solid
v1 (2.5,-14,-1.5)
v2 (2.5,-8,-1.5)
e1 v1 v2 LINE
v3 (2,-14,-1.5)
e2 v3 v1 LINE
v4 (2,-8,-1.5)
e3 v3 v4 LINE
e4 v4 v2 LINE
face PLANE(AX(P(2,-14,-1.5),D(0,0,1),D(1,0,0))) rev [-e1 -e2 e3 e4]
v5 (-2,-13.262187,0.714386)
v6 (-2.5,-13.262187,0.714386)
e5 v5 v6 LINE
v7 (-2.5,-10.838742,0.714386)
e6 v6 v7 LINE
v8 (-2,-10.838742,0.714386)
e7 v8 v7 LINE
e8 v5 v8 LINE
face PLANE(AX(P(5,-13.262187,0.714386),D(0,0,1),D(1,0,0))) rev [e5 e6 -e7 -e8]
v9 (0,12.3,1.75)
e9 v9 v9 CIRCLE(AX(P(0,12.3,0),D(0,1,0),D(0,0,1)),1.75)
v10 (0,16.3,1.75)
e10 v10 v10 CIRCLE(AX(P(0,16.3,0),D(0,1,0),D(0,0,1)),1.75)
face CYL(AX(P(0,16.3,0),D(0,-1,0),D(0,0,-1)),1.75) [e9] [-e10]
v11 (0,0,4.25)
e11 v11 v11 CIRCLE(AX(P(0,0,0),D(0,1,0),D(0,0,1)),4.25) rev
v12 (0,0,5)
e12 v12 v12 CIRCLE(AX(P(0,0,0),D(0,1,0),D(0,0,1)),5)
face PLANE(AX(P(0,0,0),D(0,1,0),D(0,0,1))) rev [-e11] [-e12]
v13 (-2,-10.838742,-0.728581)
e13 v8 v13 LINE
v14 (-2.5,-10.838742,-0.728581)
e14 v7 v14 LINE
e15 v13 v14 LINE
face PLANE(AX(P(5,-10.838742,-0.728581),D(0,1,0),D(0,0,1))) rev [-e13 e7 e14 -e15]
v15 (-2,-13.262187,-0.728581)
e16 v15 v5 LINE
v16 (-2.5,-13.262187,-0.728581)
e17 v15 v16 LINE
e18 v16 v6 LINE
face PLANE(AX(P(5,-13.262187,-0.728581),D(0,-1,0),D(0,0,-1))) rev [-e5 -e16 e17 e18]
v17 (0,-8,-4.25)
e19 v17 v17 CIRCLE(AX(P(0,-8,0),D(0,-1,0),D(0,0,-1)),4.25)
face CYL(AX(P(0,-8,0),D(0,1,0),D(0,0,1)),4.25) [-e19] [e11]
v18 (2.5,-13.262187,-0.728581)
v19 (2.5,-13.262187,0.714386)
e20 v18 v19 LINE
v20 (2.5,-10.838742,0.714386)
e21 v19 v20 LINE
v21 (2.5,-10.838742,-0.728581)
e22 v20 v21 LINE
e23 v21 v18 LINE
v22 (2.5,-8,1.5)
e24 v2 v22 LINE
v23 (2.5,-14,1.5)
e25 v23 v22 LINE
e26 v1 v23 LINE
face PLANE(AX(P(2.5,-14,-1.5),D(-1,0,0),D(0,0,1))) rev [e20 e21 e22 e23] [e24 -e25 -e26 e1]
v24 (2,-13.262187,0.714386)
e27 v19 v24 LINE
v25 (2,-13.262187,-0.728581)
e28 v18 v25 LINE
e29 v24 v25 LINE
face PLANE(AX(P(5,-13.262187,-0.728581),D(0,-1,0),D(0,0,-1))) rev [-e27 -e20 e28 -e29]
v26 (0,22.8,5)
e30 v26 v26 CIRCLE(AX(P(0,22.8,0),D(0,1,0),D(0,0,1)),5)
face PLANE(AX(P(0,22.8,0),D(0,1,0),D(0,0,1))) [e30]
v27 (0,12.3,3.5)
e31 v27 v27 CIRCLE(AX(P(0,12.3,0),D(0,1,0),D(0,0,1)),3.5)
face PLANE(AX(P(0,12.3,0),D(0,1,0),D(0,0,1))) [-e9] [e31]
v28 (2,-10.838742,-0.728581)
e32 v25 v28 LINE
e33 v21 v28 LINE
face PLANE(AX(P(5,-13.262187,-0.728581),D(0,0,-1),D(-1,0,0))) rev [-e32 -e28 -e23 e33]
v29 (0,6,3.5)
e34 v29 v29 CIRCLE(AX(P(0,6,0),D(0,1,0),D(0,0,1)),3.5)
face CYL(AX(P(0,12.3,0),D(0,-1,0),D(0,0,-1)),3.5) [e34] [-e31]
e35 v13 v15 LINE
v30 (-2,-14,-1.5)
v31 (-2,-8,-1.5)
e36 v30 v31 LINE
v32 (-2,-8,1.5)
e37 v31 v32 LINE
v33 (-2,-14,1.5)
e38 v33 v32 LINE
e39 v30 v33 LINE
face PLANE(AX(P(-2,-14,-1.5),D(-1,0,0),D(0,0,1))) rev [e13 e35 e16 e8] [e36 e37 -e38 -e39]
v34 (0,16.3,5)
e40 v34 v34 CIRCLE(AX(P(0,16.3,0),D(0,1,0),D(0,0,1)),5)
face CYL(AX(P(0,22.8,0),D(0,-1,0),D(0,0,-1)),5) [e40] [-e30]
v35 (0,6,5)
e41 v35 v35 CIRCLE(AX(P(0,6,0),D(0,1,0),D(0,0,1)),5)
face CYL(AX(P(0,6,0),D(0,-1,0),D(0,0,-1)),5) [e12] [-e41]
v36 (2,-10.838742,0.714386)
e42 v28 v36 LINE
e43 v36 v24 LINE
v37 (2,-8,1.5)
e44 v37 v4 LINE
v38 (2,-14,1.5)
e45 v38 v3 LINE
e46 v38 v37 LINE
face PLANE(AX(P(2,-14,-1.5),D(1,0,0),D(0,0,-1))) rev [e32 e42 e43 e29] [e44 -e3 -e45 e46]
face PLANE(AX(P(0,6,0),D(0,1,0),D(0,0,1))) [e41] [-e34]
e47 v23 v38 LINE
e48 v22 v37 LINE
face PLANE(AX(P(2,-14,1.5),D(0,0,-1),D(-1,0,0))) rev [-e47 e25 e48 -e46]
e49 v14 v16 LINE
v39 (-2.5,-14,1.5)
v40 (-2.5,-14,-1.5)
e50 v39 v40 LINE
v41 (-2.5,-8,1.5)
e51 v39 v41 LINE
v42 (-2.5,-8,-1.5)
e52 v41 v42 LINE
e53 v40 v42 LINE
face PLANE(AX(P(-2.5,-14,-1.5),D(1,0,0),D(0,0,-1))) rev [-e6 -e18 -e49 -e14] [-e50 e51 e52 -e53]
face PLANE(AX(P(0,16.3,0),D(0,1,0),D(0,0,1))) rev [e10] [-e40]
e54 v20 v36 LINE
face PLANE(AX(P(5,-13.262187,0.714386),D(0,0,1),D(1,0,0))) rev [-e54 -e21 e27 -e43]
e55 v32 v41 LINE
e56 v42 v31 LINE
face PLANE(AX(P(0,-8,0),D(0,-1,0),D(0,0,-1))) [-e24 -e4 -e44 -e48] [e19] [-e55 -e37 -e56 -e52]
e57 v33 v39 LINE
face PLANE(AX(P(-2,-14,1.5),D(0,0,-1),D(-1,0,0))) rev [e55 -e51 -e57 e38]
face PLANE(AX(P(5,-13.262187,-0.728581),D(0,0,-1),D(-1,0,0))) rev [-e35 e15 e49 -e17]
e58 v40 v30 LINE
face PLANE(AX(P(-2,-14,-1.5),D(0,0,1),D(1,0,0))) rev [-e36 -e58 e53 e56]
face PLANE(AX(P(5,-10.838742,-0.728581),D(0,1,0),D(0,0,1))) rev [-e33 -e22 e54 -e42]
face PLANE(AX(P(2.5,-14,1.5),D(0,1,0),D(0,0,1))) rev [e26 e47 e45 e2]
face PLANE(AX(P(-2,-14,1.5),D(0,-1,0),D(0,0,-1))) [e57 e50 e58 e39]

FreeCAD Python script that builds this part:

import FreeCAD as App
import Part
import Sketcher
from FreeCAD import Vector
Q = App.Units.Quantity

doc = App.newDocument("Part")
params = doc.addObject("Spreadsheet::Sheet", "Params")
for row, (alias, value) in enumerate([
    ("sketch1_diameter", "10 mm"),
    ("pad1_length", "6 mm"),
    ("sketch2_diameter", "8.5 mm"),
    ("pad2_length", "8 mm"),
    ("sketch3_height", "3 mm"),
    ("sketch3_width", "0.5 mm"),
    ("pad3_length", "6 mm"),
    ("sketch5_diameter", "7 mm"),
    ("pad4_length", "6.3 mm"),
    ("sketch6_diameter", "3.5 mm"),
    ("pad5_length", "4 mm"),
    ("sketch7_diameter", "10 mm"),
    ("pad6_length", "6.5 mm"),
], start=1):
    params.set(f"A{row}", alias)
    params.set(f"B{row}", "=" + value)
    params.setAlias(f"B{row}", alias)

body = doc.addObject("PartDesign::Body", "Body")

# Sketch on XZ plane
sketch1 = doc.addObject("Sketcher::SketchObject", "Sketch")
body.addObject(sketch1)
sketch1.AttachmentSupport = (doc.XZ_Plane, [""])
sketch1.MapMode = "FlatFace"
sketch1.addGeometry(Part.Circle(Vector(0, 0, 0), Vector(0, 0, 1), 5), False)
sketch1.addConstraint([
    Sketcher.Constraint("Coincident", 0, 3, -1, 1),
    Sketcher.Constraint("Diameter", 0, Q("10 mm")),
])
sketch1.setExpression("Constraints[1]", "Params.sketch1_diameter")
pad1 = doc.addObject("PartDesign::Pad", "Pad")
body.addObject(pad1)
pad1.Profile = sketch1
pad1.setExpression("Length", "Params.pad1_length")
pad1.Reversed = True

# Sketch on XZ plane
sketch2 = doc.addObject("Sketcher::SketchObject", "Sketch001")
body.addObject(sketch2)
sketch2.AttachmentSupport = (doc.XZ_Plane, [""])
sketch2.MapMode = "FlatFace"
sketch2.addGeometry(Part.Circle(Vector(0, 0, 0), Vector(0, 0, 1), 4.25), False)
sketch2.addConstraint([
    Sketcher.Constraint("Coincident", 0, 3, -1, 1),
    Sketcher.Constraint("Diameter", 0, Q("8.5 mm")),
])
sketch2.setExpression("Constraints[1]", "Params.sketch2_diameter")
pad2 = doc.addObject("PartDesign::Pad", "Pad001")
body.addObject(pad2)
pad2.Profile = sketch2
pad2.setExpression("Length", "Params.pad2_length")

# Sketch on XZ plane
sketch3 = doc.addObject("Sketcher::SketchObject", "Sketch002")
body.addObject(sketch3)
sketch3.AttachmentSupport = (doc.XZ_Plane, [""])
sketch3.MapMode = "FlatFace"
sketch3.AttachmentOffset = App.Placement(Vector(0, 0, 8), App.Rotation())
sketch3.addGeometry([
    Part.LineSegment(Vector(2, 1.5, 0), Vector(2, -1.5, 0)),  # 0
    Part.LineSegment(Vector(2, -1.5, 0), Vector(2.5, -1.5, 0)),  # 1
    Part.LineSegment(Vector(2.5, -1.5, 0), Vector(2.5, 1.5, 0)),  # 2
    Part.LineSegment(Vector(2.5, 1.5, 0), Vector(2, 1.5, 0)),  # 3
    Part.LineSegment(Vector(-2.5, 1.5, 0), Vector(-2.5, -1.5, 0)),  # 4
    Part.LineSegment(Vector(-2.5, -1.5, 0), Vector(-2, -1.5, 0)),  # 5
    Part.LineSegment(Vector(-2, -1.5, 0), Vector(-2, 1.5, 0)),  # 6
    Part.LineSegment(Vector(-2, 1.5, 0), Vector(-2.5, 1.5, 0)),  # 7
], False)
sketch3.addConstraint([
    Sketcher.Constraint("Coincident", 0, 2, 1, 1),
    Sketcher.Constraint("Coincident", 1, 2, 2, 1),
    Sketcher.Constraint("Coincident", 2, 2, 3, 1),
    Sketcher.Constraint("Coincident", 3, 2, 0, 1),
    Sketcher.Constraint("Coincident", 4, 2, 5, 1),
    Sketcher.Constraint("Coincident", 5, 2, 6, 1),
    Sketcher.Constraint("Coincident", 6, 2, 7, 1),
    Sketcher.Constraint("Coincident", 7, 2, 4, 1),
    Sketcher.Constraint("Vertical", 0),
    Sketcher.Constraint("Horizontal", 1),
    Sketcher.Constraint("Vertical", 2),
    Sketcher.Constraint("Horizontal", 3),
    Sketcher.Constraint("Vertical", 4),
    Sketcher.Constraint("Horizontal", 5),
    Sketcher.Constraint("Vertical", 6),
    Sketcher.Constraint("Horizontal", 7),
    Sketcher.Constraint("Symmetric", 2, 2, 4, 2, -1, 1),
    Sketcher.Constraint("Symmetric", 0, 2, 6, 2, -1, 1),
    Sketcher.Constraint("Horizontal", 1, 2, 4, 2),
    Sketcher.Constraint("DistanceY", 0, 2, 0, 1, Q("3 mm")),
    Sketcher.Constraint("DistanceX", 1, 1, 1, 2, Q("0.5 mm")),
    Sketcher.Constraint("DistanceX", -1, 1, 0, 2, Q("2 mm")),
])
sketch3.setExpression("Constraints[19]", "Params.sketch3_height")
sketch3.setExpression("Constraints[20]", "Params.sketch3_width")
pad3 = doc.addObject("PartDesign::Pad", "Pad002")
body.addObject(pad3)
pad3.Profile = sketch3
pad3.setExpression("Length", "Params.pad3_length")

# Sketch on YZ plane
sketch4 = doc.addObject("Sketcher::SketchObject", "Sketch003")
body.addObject(sketch4)
sketch4.AttachmentSupport = (doc.YZ_Plane, [""])
sketch4.MapMode = "FlatFace"
sketch4.AttachmentOffset = App.Placement(Vector(0, 0, -2.5), App.Rotation())
sketch4.addGeometry([
    Part.LineSegment(Vector(-10.838742, -0.728581, 0), Vector(-13.262187, -0.728581, 0)),
    Part.LineSegment(Vector(-13.262187, -0.728581, 0), Vector(-13.262187, 0.714386, 0)),
    Part.LineSegment(Vector(-13.262187, 0.714386, 0), Vector(-10.838742, 0.714386, 0)),
    Part.LineSegment(Vector(-10.838742, 0.714386, 0), Vector(-10.838742, -0.728581, 0)),
], False)
sketch4.addConstraint([
    Sketcher.Constraint("Coincident", 0, 2, 1, 1),
    Sketcher.Constraint("Coincident", 1, 2, 2, 1),
    Sketcher.Constraint("Coincident", 2, 2, 3, 1),
    Sketcher.Constraint("Coincident", 3, 2, 0, 1),
    Sketcher.Constraint("Horizontal", 0),
    Sketcher.Constraint("Vertical", 1),
    Sketcher.Constraint("Horizontal", 2),
    Sketcher.Constraint("Vertical", 3),
    Sketcher.Constraint("DistanceX", 0, 2, 0, 1, Q("2.423445 mm")),
    Sketcher.Constraint("DistanceY", 1, 1, 1, 2, Q("1.442967 mm")),
    Sketcher.Constraint("DistanceY", 0, 2, -1, 1, Q("0.728581 mm")),
    Sketcher.Constraint("DistanceX", 2, 2, -1, 1, Q("10.838742 mm")),
])
pocket1 = doc.addObject("PartDesign::Pocket", "Pocket")
body.addObject(pocket1)
pocket1.Profile = sketch4
pocket1.Type = "ThroughAll"
pocket1.Reversed = True

# Sketch on XZ plane
sketch5 = doc.addObject("Sketcher::SketchObject", "Sketch004")
body.addObject(sketch5)
sketch5.AttachmentSupport = (doc.XZ_Plane, [""])
sketch5.MapMode = "FlatFace"
sketch5.AttachmentOffset = App.Placement(Vector(0, 0, -6), App.Rotation())
sketch5.addGeometry(Part.Circle(Vector(0, 0, 0), Vector(0, 0, 1), 3.5), False)
sketch5.addConstraint([
    Sketcher.Constraint("Coincident", 0, 3, -1, 1),
    Sketcher.Constraint("Diameter", 0, Q("7 mm")),
])
sketch5.setExpression("Constraints[1]", "Params.sketch5_diameter")
pad4 = doc.addObject("PartDesign::Pad", "Pad003")
body.addObject(pad4)
pad4.Profile = sketch5
pad4.setExpression("Length", "Params.pad4_length")
pad4.Reversed = True

# Sketch on XZ plane
sketch6 = doc.addObject("Sketcher::SketchObject", "Sketch005")
body.addObject(sketch6)
sketch6.AttachmentSupport = (doc.XZ_Plane, [""])
sketch6.MapMode = "FlatFace"
sketch6.AttachmentOffset = App.Placement(Vector(0, 0, -12.3), App.Rotation())
sketch6.addGeometry(Part.Circle(Vector(0, 0, 0), Vector(0, 0, 1), 1.75), False)
sketch6.addConstraint([
    Sketcher.Constraint("Coincident", 0, 3, -1, 1),
    Sketcher.Constraint("Diameter", 0, Q("3.5 mm")),
])
sketch6.setExpression("Constraints[1]", "Params.sketch6_diameter")
pad5 = doc.addObject("PartDesign::Pad", "Pad004")
body.addObject(pad5)
pad5.Profile = sketch6
pad5.setExpression("Length", "Params.pad5_length")
pad5.Reversed = True

# Sketch on XZ plane
sketch7 = doc.addObject("Sketcher::SketchObject", "Sketch006")
body.addObject(sketch7)
sketch7.AttachmentSupport = (doc.XZ_Plane, [""])
sketch7.MapMode = "FlatFace"
sketch7.AttachmentOffset = App.Placement(Vector(0, 0, -16.3), App.Rotation())
sketch7.addGeometry(Part.Circle(Vector(0, 0, 0), Vector(0, 0, 1), 5), False)
sketch7.addConstraint([
    Sketcher.Constraint("Coincident", 0, 3, -1, 1),
    Sketcher.Constraint("Diameter", 0, Q("10 mm")),
])
sketch7.setExpression("Constraints[1]", "Params.sketch7_diameter")
pad6 = doc.addObject("PartDesign::Pad", "Pad005")
body.addObject(pad6)
pad6.Profile = sketch7
pad6.setExpression("Length", "Params.pad6_length")
pad6.Reversed = True

doc.recompute()
